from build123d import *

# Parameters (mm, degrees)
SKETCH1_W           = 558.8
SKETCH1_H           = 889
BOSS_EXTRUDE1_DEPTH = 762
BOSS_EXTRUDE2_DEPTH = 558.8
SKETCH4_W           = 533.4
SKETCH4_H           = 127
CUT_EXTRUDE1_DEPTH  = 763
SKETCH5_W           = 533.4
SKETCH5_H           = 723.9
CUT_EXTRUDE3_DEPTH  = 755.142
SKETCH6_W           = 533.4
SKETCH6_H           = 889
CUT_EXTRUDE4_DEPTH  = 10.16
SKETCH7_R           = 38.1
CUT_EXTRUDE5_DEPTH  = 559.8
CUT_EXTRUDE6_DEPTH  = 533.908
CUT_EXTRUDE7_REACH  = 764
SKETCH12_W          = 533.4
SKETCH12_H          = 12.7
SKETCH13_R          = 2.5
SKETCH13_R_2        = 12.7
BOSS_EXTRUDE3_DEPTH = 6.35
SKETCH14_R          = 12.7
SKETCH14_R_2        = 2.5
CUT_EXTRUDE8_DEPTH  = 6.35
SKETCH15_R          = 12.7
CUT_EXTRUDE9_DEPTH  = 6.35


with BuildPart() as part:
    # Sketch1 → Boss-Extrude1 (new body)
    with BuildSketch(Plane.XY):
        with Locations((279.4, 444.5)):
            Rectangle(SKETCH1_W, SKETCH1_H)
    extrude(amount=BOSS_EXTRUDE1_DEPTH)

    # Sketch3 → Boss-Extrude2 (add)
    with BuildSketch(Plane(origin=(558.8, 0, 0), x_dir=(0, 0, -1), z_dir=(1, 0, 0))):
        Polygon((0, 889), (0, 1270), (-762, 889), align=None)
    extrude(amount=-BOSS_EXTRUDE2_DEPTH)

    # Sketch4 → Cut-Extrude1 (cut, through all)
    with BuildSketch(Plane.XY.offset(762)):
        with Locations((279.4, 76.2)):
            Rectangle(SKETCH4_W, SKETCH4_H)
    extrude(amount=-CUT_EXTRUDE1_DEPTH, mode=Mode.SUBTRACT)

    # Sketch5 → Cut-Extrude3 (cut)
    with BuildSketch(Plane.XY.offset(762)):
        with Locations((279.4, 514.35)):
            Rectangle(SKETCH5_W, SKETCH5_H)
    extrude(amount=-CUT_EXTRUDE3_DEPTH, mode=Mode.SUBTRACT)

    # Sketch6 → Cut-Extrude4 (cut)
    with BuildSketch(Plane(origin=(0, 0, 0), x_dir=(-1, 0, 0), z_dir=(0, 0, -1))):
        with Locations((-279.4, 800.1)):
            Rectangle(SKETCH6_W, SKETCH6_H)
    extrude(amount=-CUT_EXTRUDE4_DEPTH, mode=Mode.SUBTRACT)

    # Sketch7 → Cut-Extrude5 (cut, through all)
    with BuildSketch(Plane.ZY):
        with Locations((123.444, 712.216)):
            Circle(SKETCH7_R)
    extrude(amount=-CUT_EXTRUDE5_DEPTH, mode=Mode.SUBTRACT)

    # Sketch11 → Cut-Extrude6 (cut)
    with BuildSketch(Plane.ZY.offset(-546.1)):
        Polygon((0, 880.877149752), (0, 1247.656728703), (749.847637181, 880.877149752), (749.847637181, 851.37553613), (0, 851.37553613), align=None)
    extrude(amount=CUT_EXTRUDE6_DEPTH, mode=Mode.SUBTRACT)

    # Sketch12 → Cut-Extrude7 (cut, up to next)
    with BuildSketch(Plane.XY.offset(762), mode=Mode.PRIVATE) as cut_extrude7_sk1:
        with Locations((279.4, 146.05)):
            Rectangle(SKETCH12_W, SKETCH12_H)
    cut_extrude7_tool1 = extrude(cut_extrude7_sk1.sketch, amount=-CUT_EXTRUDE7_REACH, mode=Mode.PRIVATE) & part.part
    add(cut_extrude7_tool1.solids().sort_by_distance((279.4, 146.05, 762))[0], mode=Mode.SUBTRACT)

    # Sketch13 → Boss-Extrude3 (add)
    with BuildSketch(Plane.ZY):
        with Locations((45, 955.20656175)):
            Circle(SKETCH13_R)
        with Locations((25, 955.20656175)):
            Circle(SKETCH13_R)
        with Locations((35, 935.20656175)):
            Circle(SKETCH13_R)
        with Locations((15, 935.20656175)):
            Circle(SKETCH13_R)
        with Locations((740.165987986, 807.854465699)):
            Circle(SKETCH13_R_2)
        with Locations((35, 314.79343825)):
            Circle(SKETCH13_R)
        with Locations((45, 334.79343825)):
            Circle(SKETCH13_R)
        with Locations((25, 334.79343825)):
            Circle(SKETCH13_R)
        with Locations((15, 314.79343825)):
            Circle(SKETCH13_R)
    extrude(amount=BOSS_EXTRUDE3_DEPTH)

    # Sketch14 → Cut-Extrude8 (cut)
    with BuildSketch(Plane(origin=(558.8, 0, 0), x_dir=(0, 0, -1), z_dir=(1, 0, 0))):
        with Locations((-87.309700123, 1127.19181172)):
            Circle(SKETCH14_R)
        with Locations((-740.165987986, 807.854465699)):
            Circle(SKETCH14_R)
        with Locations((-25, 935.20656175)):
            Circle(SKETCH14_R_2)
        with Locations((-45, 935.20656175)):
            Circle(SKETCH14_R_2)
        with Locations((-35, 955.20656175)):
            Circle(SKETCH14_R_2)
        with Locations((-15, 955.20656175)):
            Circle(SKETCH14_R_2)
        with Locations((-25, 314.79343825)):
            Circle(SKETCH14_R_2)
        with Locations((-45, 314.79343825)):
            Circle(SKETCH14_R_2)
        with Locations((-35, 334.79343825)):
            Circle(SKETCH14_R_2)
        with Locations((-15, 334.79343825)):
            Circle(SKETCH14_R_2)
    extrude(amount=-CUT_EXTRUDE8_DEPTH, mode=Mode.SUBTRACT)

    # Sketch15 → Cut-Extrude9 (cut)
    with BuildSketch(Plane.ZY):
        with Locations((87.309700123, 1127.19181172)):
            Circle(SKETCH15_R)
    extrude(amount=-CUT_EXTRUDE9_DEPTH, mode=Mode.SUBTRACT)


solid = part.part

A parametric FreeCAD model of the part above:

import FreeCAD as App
import Part
import Sketcher
from FreeCAD import Vector
Q = App.Units.Quantity


def add_polygon(sketch, points):
    """Adds a closed chain of lines whose ends are joined by coincident constraints."""
    first, n = sketch.GeometryCount, len(points)
    for a, b in zip(points, points[1:] + points[:1]):
        sketch.addGeometry(Part.LineSegment(App.Vector(*a, 0), App.Vector(*b, 0)), False)
    for i in range(n):
        sketch.addConstraint(Sketcher.Constraint("Coincident", first + i, 2, first + (i + 1) % n, 1))

doc = App.newDocument("Part")
body = doc.addObject("PartDesign::Body", "Body")

sketch1 = body.newObject("Sketcher::SketchObject", "Sketch")
sketch1.AttachmentSupport = (doc.getObject("XY_Plane"), [""])
sketch1.MapMode = "FlatFace"
add_polygon(sketch1, [(0, 889), (0, 0), (558.8, 0), (558.8, 889)])
sketch1.addConstraint([
    Sketcher.Constraint("Vertical", 0),
    Sketcher.Constraint("Horizontal", 1),
    Sketcher.Constraint("Vertical", 2),
    Sketcher.Constraint("Horizontal", 3),
    Sketcher.Constraint("Coincident", 0, 2, -1, 1),
    Sketcher.Constraint("DistanceX", 1, 1, 1, 2, Q("22 in")),
    Sketcher.Constraint("DistanceY", 0, 2, 0, 1, Q("35 in")),
])
pad1 = body.newObject("PartDesign::Pad", "Pad")
pad1.Profile = sketch1
pad1.Length = Q("30 in")

sketch2 = body.newObject("Sketcher::SketchObject", "Sketch001")
sketch2.AttachmentSupport = (doc.getObject("YZ_Plane"), [""])
sketch2.MapMode = "FlatFace"
sketch2.AttachmentOffset = App.Placement(Vector(0, 0, 22 * 25.4), App.Rotation())
add_polygon(sketch2, [(889, 0), (1270, 0), (889, 762)])
sketch2.addConstraint([
    Sketcher.Constraint("Horizontal", 0),
    Sketcher.Constraint("Vertical", 2),
    Sketcher.Constraint("PointOnObject", 0, 2, -1),
    Sketcher.Constraint("DistanceX", 0, 1, 0, 2, Q("15 in")),
    Sketcher.Constraint("DistanceY", 2, 2, 2, 1, Q("30 in")),
    Sketcher.Constraint("DistanceX", -1, 1, 0, 2, Q("50 in")),
])
pad2 = body.newObject("PartDesign::Pad", "Pad001")
pad2.Profile = sketch2
pad2.Length = Q("22 in")
pad2.Reversed = True

sketch3 = body.newObject("Sketcher::SketchObject", "Sketch002")
sketch3.AttachmentSupport = (doc.getObject("XY_Plane"), [""])
sketch3.MapMode = "FlatFace"
sketch3.AttachmentOffset = App.Placement(Vector(0, 0, 30 * 25.4), App.Rotation())
add_polygon(sketch3, [(12.7, 139.7), (12.7, 12.7), (546.1, 12.7), (546.1, 139.7)])
sketch3.addConstraint([
    Sketcher.Constraint("Vertical", 0),
    Sketcher.Constraint("Horizontal", 1),
    Sketcher.Constraint("Vertical", 2),
    Sketcher.Constraint("Horizontal", 3),
    Sketcher.Constraint("DistanceX", 1, 1, 1, 2, Q("21 in")),
    Sketcher.Constraint("DistanceY", 0, 2, 0, 1, Q("5 in")),
    Sketcher.Constraint("DistanceX", -1, 1, 0, 2, Q("0.5 in")),
    Sketcher.Constraint("DistanceY", -1, 1, 0, 2, Q("0.5 in")),
])
pocket1 = body.newObject("PartDesign::Pocket", "Pocket")
pocket1.Profile = sketch3
pocket1.Type = "ThroughAll"

sketch4 = body.newObject("Sketcher::SketchObject", "Sketch003")
sketch4.AttachmentSupport = (doc.getObject("XY_Plane"), [""])
sketch4.MapMode = "FlatFace"
sketch4.AttachmentOffset = App.Placement(Vector(0, 0, 30 * 25.4), App.Rotation())
add_polygon(sketch4, [(12.7, 876.3), (12.7, 152.4), (546.1, 152.4), (546.1, 876.3)])
sketch4.addConstraint([
    Sketcher.Constraint("Vertical", 0),
    Sketcher.Constraint("Horizontal", 1),
    Sketcher.Constraint("Vertical", 2),
    Sketcher.Constraint("Horizontal", 3),
    Sketcher.Constraint("DistanceX", 1, 1, 1, 2, Q("21 in")),
    Sketcher.Constraint("DistanceY", 0, 2, 0, 1, Q("28.5 in")),
    Sketcher.Constraint("DistanceY", -1, 1, 0, 2, Q("6 in")),
    Sketcher.Constraint("DistanceX", -1, 1, 0, 2, Q("0.5 in")),
])
pocket2 = body.newObject("PartDesign::Pocket", "Pocket001")
pocket2.Profile = sketch4
pocket2.Length = Q("29.73 in")

sketch5 = body.newObject("Sketcher::SketchObject", "Sketch004")
sketch5.AttachmentSupport = (doc.getObject("XY_Plane"), [""])
sketch5.MapMode = "FlatFace"
add_polygon(sketch5, [(546.1, 1244.6), (546.1, 355.6), (12.7, 355.6), (12.7, 1244.6)])
sketch5.addConstraint([
    Sketcher.Constraint("Vertical", 0),
    Sketcher.Constraint("Horizontal", 1),
    Sketcher.Constraint("Vertical", 2),
    Sketcher.Constraint("Horizontal", 3),
    Sketcher.Constraint("DistanceX", 1, 2, 1, 1, Q("21 in")),
    Sketcher.Constraint("DistanceY", 0, 2, 0, 1, Q("35 in")),
    Sketcher.Constraint("DistanceY", -1, 1, 0, 2, Q("14 in")),
    Sketcher.Constraint("DistanceX", -1, 1, 0, 2, Q("21.5 in")),
])
pocket3 = body.newObject("PartDesign::Pocket", "Pocket002")
pocket3.Profile = sketch5
pocket3.Length = Q("0.4 in")
pocket3.Reversed = True

sketch6 = body.newObject("Sketcher::SketchObject", "Sketch005")
sketch6.AttachmentSupport = (doc.getObject("YZ_Plane"), [""])
sketch6.MapMode = "FlatFace"
sketch6.addGeometry(Part.Circle(Vector(712.216, 123.444, 0), Vector(0, 0, 1), 38.1), False)
sketch6.addConstraint([
    Sketcher.Constraint("Diameter", 0, Q("3 in")),
    Sketcher.Constraint("DistanceX", -1, 1, 0, 3, Q("28.04 in")),
    Sketcher.Constraint("DistanceY", -1, 1, 0, 3, Q("4.86 in")),
])
pocket4 = body.newObject("PartDesign::Pocket", "Pocket003")
pocket4.Profile = sketch6
pocket4.Type = "ThroughAll"
pocket4.Reversed = True

sketch7 = body.newObject("Sketcher::SketchObject", "Sketch006")
sketch7.AttachmentSupport = (doc.getObject("YZ_Plane"), [""])
sketch7.MapMode = "FlatFace"
sketch7.AttachmentOffset = App.Placement(Vector(0, 0, 21.5 * 25.4), App.Rotation())
add_polygon(sketch7, [(1247.656729, 0), (851.375536, 0), (851.375536, 749.847637), (880.87715, 749.847637)])
sketch7.addConstraint([
    Sketcher.Constraint("Horizontal", 0),
    Sketcher.Constraint("Vertical", 1),
    Sketcher.Constraint("Horizontal", 2),
    Sketcher.Constraint("PointOnObject", 0, 2, -1),
    Sketcher.Constraint("DistanceX", 0, 2, 0, 1, 396.281193),
    Sketcher.Constraint("DistanceX", 2, 1, 2, 2, 29.501614),
    Sketcher.Constraint("DistanceY", 1, 1, 1, 2, 749.847637),
    Sketcher.Constraint("DistanceX", -1, 1, 2, 2, 880.87715),
])
pocket5 = body.newObject("PartDesign::Pocket", "Pocket004")
pocket5.Profile = sketch7
pocket5.Length = Q("21.02 in")

sketch8 = body.newObject("Sketcher::SketchObject", "Sketch007")
sketch8.AttachmentSupport = (doc.getObject("XY_Plane"), [""])
sketch8.MapMode = "FlatFace"
sketch8.AttachmentOffset = App.Placement(Vector(0, 0, 30 * 25.4), App.Rotation())
add_polygon(sketch8, [(12.7, 152.4), (12.7, 139.7), (546.1, 139.7), (546.1, 152.4)])
sketch8.addConstraint([
    Sketcher.Constraint("Vertical", 0),
    Sketcher.Constraint("Horizontal", 1),
    Sketcher.Constraint("Vertical", 2),
    Sketcher.Constraint("Horizontal", 3),
    Sketcher.Constraint("DistanceX", 1, 1, 1, 2, Q("21 in")),
    Sketcher.Constraint("DistanceY", 0, 2, 0, 1, Q("0.5 in")),
    Sketcher.Constraint("DistanceY", -1, 1, 2, 2, Q("6 in")),
    Sketcher.Constraint("DistanceX", -1, 1, 0, 2, Q("0.5 in")),
])
pocket6 = body.newObject("PartDesign::Pocket", "Pocket005")
pocket6.Profile = sketch8
pocket6.Type = "UpToFirst"

sketch9 = body.newObject("Sketcher::SketchObject", "Sketch008")
sketch9.AttachmentSupport = (doc.getObject("YZ_Plane"), [""])
sketch9.MapMode = "FlatFace"
sketch9.addGeometry([
    Part.Circle(Vector(955.206562, 45, 0), Vector(0, 0, 1), 2.5),
    Part.Circle(Vector(955.206562, 25, 0), Vector(0, 0, 1), 2.5),
    Part.Circle(Vector(935.206562, 35, 0), Vector(0, 0, 1), 2.5),
    Part.Circle(Vector(935.206562, 15, 0), Vector(0, 0, 1), 2.5),
    Part.Circle(Vector(807.854466, 740.165988, 0), Vector(0, 0, 1), 12.7),
    Part.Circle(Vector(314.793438, 35, 0), Vector(0, 0, 1), 2.5),
    Part.Circle(Vector(334.793438, 45, 0), Vector(0, 0, 1), 2.5),
    Part.Circle(Vector(334.793438, 25, 0), Vector(0, 0, 1), 2.5),
    Part.Circle(Vector(314.793438, 15, 0), Vector(0, 0, 1), 2.5),
], False)
sketch9.addConstraint([
    Sketcher.Constraint("Equal", 0, 1),
    Sketcher.Constraint("Equal", 1, 2),
    Sketcher.Constraint("Equal", 2, 3),
    Sketcher.Constraint("Equal", 3, 5),
    Sketcher.Constraint("Equal", 5, 6),
    Sketcher.Constraint("Equal", 6, 7),
    Sketcher.Constraint("Equal", 7, 8),
    Sketcher.Constraint("Horizontal", 2, 3, 5, 3),
    Sketcher.Constraint("Horizontal", 0, 3, 6, 3),
    Sketcher.Constraint("Horizontal", 1, 3, 7, 3),
    Sketcher.Constraint("Horizontal", 3, 3, 8, 3),
    Sketcher.Constraint("Vertical", 0, 3, 1, 3),
    Sketcher.Constraint("Vertical", 2, 3, 3, 3),
    Sketcher.Constraint("Vertical", 6, 3, 7, 3),
    Sketcher.Constraint("Vertical", 5, 3, 8, 3),
    Sketcher.Constraint("Diameter", 4, Q("1 in")),
    Sketcher.Constraint("Diameter", 0, 5.0),
    Sketcher.Constraint("DistanceY", -1, 1, 0, 3, 45.0),
    Sketcher.Constraint("DistanceY", -1, 1, 1, 3, 25.0),
    Sketcher.Constraint("DistanceY", -1, 1, 2, 3, 35.0),
    Sketcher.Constraint("DistanceY", -1, 1, 3, 3, 15.0),
    Sketcher.Constraint("DistanceX", 2, 3, 0, 3, 20.0),
    Sketcher.Constraint("DistanceX", 5, 3, 6, 3, 20.0),
    Sketcher.Constraint("DistanceX", -1, 1, 0, 3, 955.206562),
    Sketcher.Constraint("DistanceX", -1, 1, 5, 3, 314.793438),
    Sketcher.Constraint("DistanceX", -1, 1, 4, 3, 807.854466),
    Sketcher.Constraint("DistanceY", -1, 1, 4, 3, 740.165988),
])
pad3 = body.newObject("PartDesign::Pad", "Pad002")
pad3.Profile = sketch9
pad3.Length = Q("0.25 in")
pad3.Reversed = True

sketch10 = body.newObject("Sketcher::SketchObject", "Sketch009")
sketch10.AttachmentSupport = (doc.getObject("YZ_Plane"), [""])
sketch10.MapMode = "FlatFace"
sketch10.AttachmentOffset = App.Placement(Vector(0, 0, 22 * 25.4), App.Rotation())
sketch10.addGeometry([
    Part.Circle(Vector(1127.191812, 87.3097, 0), Vector(0, 0, 1), 12.7),
    Part.Circle(Vector(807.854466, 740.165988, 0), Vector(0, 0, 1), 12.7),
    Part.Circle(Vector(935.206562, 25, 0), Vector(0, 0, 1), 2.5),
    Part.Circle(Vector(935.206562, 45, 0), Vector(0, 0, 1), 2.5),
    Part.Circle(Vector(955.206562, 35, 0), Vector(0, 0, 1), 2.5),
    Part.Circle(Vector(955.206562, 15, 0), Vector(0, 0, 1), 2.5),
    Part.Circle(Vector(314.793438, 25, 0), Vector(0, 0, 1), 2.5),
    Part.Circle(Vector(314.793438, 45, 0), Vector(0, 0, 1), 2.5),
    Part.Circle(Vector(334.793438, 35, 0), Vector(0, 0, 1), 2.5),
    Part.Circle(Vector(334.793438, 15, 0), Vector(0, 0, 1), 2.5),
], False)
sketch10.addConstraint([
    Sketcher.Constraint("Equal", 0, 1),
    Sketcher.Constraint("Equal", 2, 3),
    Sketcher.Constraint("Equal", 3, 4),
    Sketcher.Constraint("Equal", 4, 5),
    Sketcher.Constraint("Equal", 5, 6),
    Sketcher.Constraint("Equal", 6, 7),
    Sketcher.Constraint("Equal", 7, 8),
    Sketcher.Constraint("Equal", 8, 9),
    Sketcher.Constraint("Horizontal", 2, 3, 6, 3),
    Sketcher.Constraint("Horizontal", 3, 3, 7, 3),
    Sketcher.Constraint("Horizontal", 4, 3, 8, 3),
    Sketcher.Constraint("Horizontal", 5, 3, 9, 3),
    Sketcher.Constraint("Vertical", 2, 3, 3, 3),
    Sketcher.Constraint("Vertical", 4, 3, 5, 3),
    Sketcher.Constraint("Vertical", 6, 3, 7, 3),
    Sketcher.Constraint("Vertical", 8, 3, 9, 3),
    Sketcher.Constraint("Diameter", 0, Q("1 in")),
    Sketcher.Constraint("Diameter", 2, 5.0),
    Sketcher.Constraint("DistanceY", -1, 1, 0, 3, 87.3097),
    Sketcher.Constraint("DistanceY", -1, 1, 2, 3, 25.0),
    Sketcher.Constraint("DistanceY", -1, 1, 3, 3, 45.0),
    Sketcher.Constraint("DistanceY", -1, 1, 4, 3, 35.0),
    Sketcher.Constraint("DistanceY", -1, 1, 5, 3, 15.0),
    Sketcher.Constraint("DistanceX", 2, 3, 4, 3, 20.0),
    Sketcher.Constraint("DistanceX", 6, 3, 8, 3, 20.0),
    Sketcher.Constraint("DistanceX", -1, 1, 0, 3, 1127.191812),
    Sketcher.Constraint("DistanceX", -1, 1, 2, 3, 935.206562),
    Sketcher.Constraint("DistanceX", -1, 1, 6, 3, 314.793438),
    Sketcher.Constraint("DistanceX", -1, 1, 1, 3, 807.854466),
    Sketcher.Constraint("DistanceY", -1, 1, 1, 3, 740.165988),
])
pocket7 = body.newObject("PartDesign::Pocket", "Pocket006")
pocket7.Profile = sketch10
pocket7.Length = Q("0.25 in")

sketch11 = body.newObject("Sketcher::SketchObject", "Sketch010")
sketch11.AttachmentSupport = (doc.getObject("YZ_Plane"), [""])
sketch11.MapMode = "FlatFace"
sketch11.addGeometry(Part.Circle(Vector(1127.191812, 87.3097, 0), Vector(0, 0, 1), 12.7), False)
sketch11.addConstraint([
    Sketcher.Constraint("Diameter", 0, Q("1 in")),
    Sketcher.Constraint("DistanceY", -1, 1, 0, 3, 87.3097),
    Sketcher.Constraint("DistanceX", -1, 1, 0, 3, 1127.191812),
])
pocket8 = body.newObject("PartDesign::Pocket", "Pocket007")
pocket8.Profile = sketch11
pocket8.Length = Q("0.25 in")
pocket8.Reversed = True

doc.recompute()
